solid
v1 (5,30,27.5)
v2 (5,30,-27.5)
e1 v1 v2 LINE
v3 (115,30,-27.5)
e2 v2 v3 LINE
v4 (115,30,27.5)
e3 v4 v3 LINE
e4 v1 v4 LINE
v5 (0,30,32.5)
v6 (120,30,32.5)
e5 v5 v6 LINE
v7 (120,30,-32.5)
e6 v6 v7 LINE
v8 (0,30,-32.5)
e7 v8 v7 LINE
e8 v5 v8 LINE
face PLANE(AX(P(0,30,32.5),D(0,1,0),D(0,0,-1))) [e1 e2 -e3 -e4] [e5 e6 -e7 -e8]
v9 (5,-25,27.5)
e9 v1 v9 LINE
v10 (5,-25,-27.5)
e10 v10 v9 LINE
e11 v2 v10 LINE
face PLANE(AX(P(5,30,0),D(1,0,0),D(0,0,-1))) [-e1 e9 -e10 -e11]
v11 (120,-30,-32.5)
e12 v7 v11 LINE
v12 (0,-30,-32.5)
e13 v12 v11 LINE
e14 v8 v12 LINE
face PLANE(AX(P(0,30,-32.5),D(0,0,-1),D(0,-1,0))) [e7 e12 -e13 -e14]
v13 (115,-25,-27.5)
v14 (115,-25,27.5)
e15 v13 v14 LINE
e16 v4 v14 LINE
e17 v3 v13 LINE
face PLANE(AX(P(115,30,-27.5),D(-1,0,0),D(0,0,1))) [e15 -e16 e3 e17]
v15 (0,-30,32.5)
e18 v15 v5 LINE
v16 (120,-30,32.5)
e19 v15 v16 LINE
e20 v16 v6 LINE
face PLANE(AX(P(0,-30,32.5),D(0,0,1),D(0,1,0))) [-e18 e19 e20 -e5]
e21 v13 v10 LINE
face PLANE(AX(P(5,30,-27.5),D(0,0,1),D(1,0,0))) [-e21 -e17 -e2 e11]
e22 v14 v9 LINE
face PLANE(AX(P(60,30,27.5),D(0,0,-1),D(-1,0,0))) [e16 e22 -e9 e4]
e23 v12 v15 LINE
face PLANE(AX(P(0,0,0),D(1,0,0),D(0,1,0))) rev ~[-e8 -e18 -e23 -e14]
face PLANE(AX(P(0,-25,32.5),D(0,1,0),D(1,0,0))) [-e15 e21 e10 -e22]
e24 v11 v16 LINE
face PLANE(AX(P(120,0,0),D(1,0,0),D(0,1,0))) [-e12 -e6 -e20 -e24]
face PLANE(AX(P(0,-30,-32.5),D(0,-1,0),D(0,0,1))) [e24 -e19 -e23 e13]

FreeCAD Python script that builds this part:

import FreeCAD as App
import Part
import Sketcher
Q = App.Units.Quantity


def add_polygon(sketch, points):
    """Adds a closed chain of lines whose ends are joined by coincident constraints."""
    first, n = sketch.GeometryCount, len(points)
    for a, b in zip(points, points[1:] + points[:1]):
        sketch.addGeometry(Part.LineSegment(App.Vector(*a, 0), App.Vector(*b, 0)), False)
    for i in range(n):
        sketch.addConstraint(Sketcher.Constraint("Coincident", first + i, 2, first + (i + 1) % n, 1))

doc = App.newDocument("Part")
params = doc.addObject("Spreadsheet::Sheet", "Params")
for row, (alias, value) in enumerate([
    ("sketch1_width", "60 mm"),
    ("sketch1_height", "65 mm"),
    ("pad1_length", "120 mm"),
    ("sketch2_width", "110 mm"),
    ("sketch2_height", "55 mm"),
    ("pocket1_length", "55 mm"),
], start=1):
    params.set(f"A{row}", alias)
    params.set(f"B{row}", "=" + value)
    params.setAlias(f"B{row}", alias)

body = doc.addObject("PartDesign::Body", "Body")

# Sketch on YZ plane
sketch1 = body.newObject("Sketcher::SketchObject", "Sketch")
sketch1.AttachmentSupport = (doc.getObject("YZ_Plane"), [""])
sketch1.MapMode = "FlatFace"
add_polygon(sketch1, [(30, 32), (-30, 32), (-30, -32), (30, -32)])  # lines 0-3
sketch1.addConstraint(Sketcher.Constraint("Horizontal", 0))
sketch1.addConstraint(Sketcher.Constraint("Vertical", 1))
sketch1.addConstraint(Sketcher.Constraint("Horizontal", 2))
sketch1.addConstraint(Sketcher.Constraint("Vertical", 3))
sketch1.addConstraint(Sketcher.Constraint("Symmetric", 0, 2, 2, 2, -1, 1))
sketch1.addConstraint(Sketcher.Constraint("DistanceX", 0, 2, 0, 1, Q("60 mm")))
sketch1.addConstraint(Sketcher.Constraint("DistanceY", 1, 2, 1, 1, Q("65 mm")))
sketch1.setExpression("Constraints[9]", "Params.sketch1_width")
sketch1.setExpression("Constraints[10]", "Params.sketch1_height")
pad1 = body.newObject("PartDesign::Pad", "Pad")
pad1.Profile = sketch1
pad1.setExpression("Length", "Params.pad1_length")

# Sketch on XZ plane
sketch2 = body.newObject("Sketcher::SketchObject", "Sketch001")
sketch2.AttachmentSupport = (doc.getObject("XZ_Plane"), [""])
sketch2.MapMode = "FlatFace"
sketch2.AttachmentOffset = App.Placement(App.Vector(0, 0, -30), App.Rotation())
add_polygon(sketch2, [(5, -28), (5, 28), (115, 28), (115, -28)])  # lines 0-3
sketch2.addConstraint(Sketcher.Constraint("Vertical", 0))
sketch2.addConstraint(Sketcher.Constraint("Horizontal", 1))
sketch2.addConstraint(Sketcher.Constraint("Vertical", 2))
sketch2.addConstraint(Sketcher.Constraint("Horizontal", 3))
sketch2.addConstraint(Sketcher.Constraint("DistanceX", 1, 1, 1, 2, Q("110 mm")))
sketch2.addConstraint(Sketcher.Constraint("DistanceY", 0, 1, 0, 2, Q("55 mm")))
sketch2.addConstraint(Sketcher.Constraint("DistanceX", -1, 1, 0, 2, Q("5 mm")))
sketch2.addConstraint(Sketcher.Constraint("DistanceY", -1, 1, 0, 2, Q("27.5 mm")))
sketch2.setExpression("Constraints[8]", "Params.sketch2_width")
sketch2.setExpression("Constraints[9]", "Params.sketch2_height")
pocket1 = body.newObject("PartDesign::Pocket", "Pocket")
pocket1.Profile = sketch2
pocket1.setExpression("Length", "Params.pocket1_length")
pocket1.Reversed = True

doc.recompute()
